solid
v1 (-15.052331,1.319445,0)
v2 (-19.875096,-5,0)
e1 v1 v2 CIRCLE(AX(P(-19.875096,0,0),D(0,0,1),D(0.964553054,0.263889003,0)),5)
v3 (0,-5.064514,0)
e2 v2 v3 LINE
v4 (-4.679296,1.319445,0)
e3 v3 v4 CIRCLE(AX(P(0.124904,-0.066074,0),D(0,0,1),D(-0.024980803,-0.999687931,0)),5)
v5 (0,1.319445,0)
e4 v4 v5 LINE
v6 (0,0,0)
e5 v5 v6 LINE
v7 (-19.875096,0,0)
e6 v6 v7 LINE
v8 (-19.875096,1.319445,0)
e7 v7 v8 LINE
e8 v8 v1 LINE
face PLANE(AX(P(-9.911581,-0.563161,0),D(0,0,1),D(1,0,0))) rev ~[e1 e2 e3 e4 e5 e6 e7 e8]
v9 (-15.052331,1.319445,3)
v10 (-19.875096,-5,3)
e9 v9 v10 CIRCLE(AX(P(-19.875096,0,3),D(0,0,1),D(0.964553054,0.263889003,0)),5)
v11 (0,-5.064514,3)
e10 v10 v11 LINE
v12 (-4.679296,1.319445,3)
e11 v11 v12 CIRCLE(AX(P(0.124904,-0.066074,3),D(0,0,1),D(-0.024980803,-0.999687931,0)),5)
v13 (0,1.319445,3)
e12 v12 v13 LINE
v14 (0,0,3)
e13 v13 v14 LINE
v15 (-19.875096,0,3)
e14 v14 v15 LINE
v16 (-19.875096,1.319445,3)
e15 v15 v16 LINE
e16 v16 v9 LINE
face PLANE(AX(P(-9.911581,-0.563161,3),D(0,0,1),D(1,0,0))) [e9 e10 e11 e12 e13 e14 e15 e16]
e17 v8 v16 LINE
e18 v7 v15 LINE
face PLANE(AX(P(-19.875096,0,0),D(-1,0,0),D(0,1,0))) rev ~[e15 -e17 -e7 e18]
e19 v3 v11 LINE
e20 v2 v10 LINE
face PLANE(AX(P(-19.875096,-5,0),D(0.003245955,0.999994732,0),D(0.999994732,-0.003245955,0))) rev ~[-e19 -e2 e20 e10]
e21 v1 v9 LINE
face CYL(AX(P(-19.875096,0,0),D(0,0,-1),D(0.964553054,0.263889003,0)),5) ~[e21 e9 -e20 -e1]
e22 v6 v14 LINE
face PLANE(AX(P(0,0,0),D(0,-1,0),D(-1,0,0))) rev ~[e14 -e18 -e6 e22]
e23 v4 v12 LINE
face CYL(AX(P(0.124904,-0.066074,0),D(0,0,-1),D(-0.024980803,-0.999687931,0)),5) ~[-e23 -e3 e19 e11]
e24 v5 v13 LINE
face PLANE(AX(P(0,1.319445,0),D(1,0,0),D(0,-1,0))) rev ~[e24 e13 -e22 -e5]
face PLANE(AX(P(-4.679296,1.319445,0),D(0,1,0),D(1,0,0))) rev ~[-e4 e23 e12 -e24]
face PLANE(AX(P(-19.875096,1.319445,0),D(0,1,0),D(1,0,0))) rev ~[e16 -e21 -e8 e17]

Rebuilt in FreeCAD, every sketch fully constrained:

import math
import FreeCAD as App
import Part
import Sketcher

V = App.Vector
Q = App.Units.Quantity

doc = App.newDocument("Part")
body = doc.addObject("PartDesign::Body", "Body")

# Sketch on XY plane
sketch1 = doc.addObject("Sketcher::SketchObject", "Sketch")
body.addObject(sketch1)
sketch1.AttachmentSupport = (doc.XY_Plane, [""])
sketch1.MapMode = "FlatFace"
sketch1.addGeometry([
    Part.LineSegment(V(-19.9, -5, 0), V(0, -5.1, 0)),  # 0
    Part.ArcOfCircle(Part.Circle(V(0.1, -0.1, 0), V(0, 0, 1), 5), math.radians(-91), math.radians(164)),  # 1
    Part.LineSegment(V(-4.7, 1.3, 0), V(0, 1.3, 0)),  # 2
    Part.LineSegment(V(0, 1.3, 0), V(0, 0, 0)),  # 3
    Part.LineSegment(V(0, 0, 0), V(-19.9, 0, 0)),  # 4
    Part.LineSegment(V(-19.9, 0, 0), V(-19.9, 1.3, 0)),  # 5
    Part.LineSegment(V(-19.9, 1.3, 0), V(-15.1, 1.3, 0)),  # 6
    Part.ArcOfCircle(Part.Circle(V(-19.9, 0, 0), V(0, 0, 1), 5), math.radians(15), math.radians(270)),  # 7
], False)
sketch1.addConstraint([
    Sketcher.Constraint("Coincident", 0, 2, 1, 1),
    Sketcher.Constraint("Coincident", 1, 2, 2, 1),
    Sketcher.Constraint("Coincident", 2, 2, 3, 1),
    Sketcher.Constraint("Coincident", 3, 2, 4, 1),
    Sketcher.Constraint("Coincident", 4, 2, 5, 1),
    Sketcher.Constraint("Coincident", 5, 2, 6, 1),
    Sketcher.Constraint("Coincident", 6, 2, 7, 1),
    Sketcher.Constraint("Coincident", 7, 2, 0, 1),
    Sketcher.Constraint("Horizontal", 2),
    Sketcher.Constraint("Vertical", 3),
    Sketcher.Constraint("Horizontal", 4),
    Sketcher.Constraint("Vertical", 5),
    Sketcher.Constraint("Horizontal", 6),
    Sketcher.Constraint("Coincident", 3, 2, -1, 1),
    Sketcher.Constraint("Coincident", 4, 2, 7, 3),
    Sketcher.Constraint("Equal", 1, 7),
    Sketcher.Constraint("PointOnObject", 0, 2, -2),
    Sketcher.Constraint("Horizontal", 2, 2, 5, 2),
    Sketcher.Constraint("Vertical", 5, 2, 7, 2),
    Sketcher.Constraint("Radius", 1, Q("5 mm")),
    Sketcher.Constraint("DistanceX", 7, 3, 1, 3, Q("20 mm")),
    Sketcher.Constraint("Distance", 0, Q("19.875201 mm")),
    Sketcher.Constraint("DistanceX", 1, 2, 1, 3, Q("4.8042 mm")),
    Sketcher.Constraint("DistanceX", 6, 1, 6, 2, Q("4.822765 mm")),
])
pad1 = doc.addObject("PartDesign::Pad", "Pad")
body.addObject(pad1)
pad1.Profile = sketch1
pad1.Length = 3

doc.recompute()
